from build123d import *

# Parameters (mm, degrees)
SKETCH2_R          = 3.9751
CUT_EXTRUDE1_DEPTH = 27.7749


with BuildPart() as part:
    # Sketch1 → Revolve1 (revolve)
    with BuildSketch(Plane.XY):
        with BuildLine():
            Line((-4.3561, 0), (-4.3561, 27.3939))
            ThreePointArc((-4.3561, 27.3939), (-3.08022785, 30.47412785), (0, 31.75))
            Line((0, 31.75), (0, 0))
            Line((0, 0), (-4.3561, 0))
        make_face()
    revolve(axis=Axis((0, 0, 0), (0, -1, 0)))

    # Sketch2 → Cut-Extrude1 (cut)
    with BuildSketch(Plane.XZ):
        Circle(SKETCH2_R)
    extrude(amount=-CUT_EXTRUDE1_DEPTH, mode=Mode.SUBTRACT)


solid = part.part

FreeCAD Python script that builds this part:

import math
import FreeCAD as App
import Part
import Sketcher
Q = App.Units.Quantity

doc = App.newDocument("Part")
body = doc.addObject("PartDesign::Body", "Body")

# Sketch on XY plane
sketch1 = body.newObject("Sketcher::SketchObject", "Sketch")
sketch1.AttachmentSupport = (doc.getObject("XY_Plane"), [""])
sketch1.MapMode = "FlatFace"
sketch1.addGeometry([
    Part.LineSegment(App.Vector(-4.4, 27.4, 0), App.Vector(-4.4, 0, 0)),
    Part.LineSegment(App.Vector(-4.4, 0, 0), App.Vector(0, 0, 0)),
    Part.LineSegment(App.Vector(0, 0, 0), App.Vector(0, 31.8, 0)),
    Part.ArcOfCircle(Part.Circle(App.Vector(0, 27.4, 0), App.Vector(0, 0, 1), 4.4), math.radians(90), math.radians(180)),
], False)
sketch1.addConstraint([
    Sketcher.Constraint("Coincident", 0, 2, 1, 1),
    Sketcher.Constraint("Coincident", 1, 2, 2, 1),
    Sketcher.Constraint("Coincident", 2, 2, 3, 1),
    Sketcher.Constraint("Tangent", 3, 2, 0, 1),
    Sketcher.Constraint("Vertical", 0),
    Sketcher.Constraint("Horizontal", 1),
    Sketcher.Constraint("Vertical", 2),
    Sketcher.Constraint("Coincident", 1, 2, -1, 1),
    Sketcher.Constraint("PointOnObject", 3, 3, -2),
    Sketcher.Constraint("DistanceY", 2, 1, 2, 2, Q("1.25 in")),
    Sketcher.Constraint("Radius", 3, Q("0.1715 in")),
])
revolution = body.newObject("PartDesign::Revolution", "Revolution")
revolution.Profile = sketch1
revolution.ReferenceAxis = (sketch1, ["V_Axis"])
revolution.Angle = 360

# Sketch on XZ plane
sketch2 = body.newObject("Sketcher::SketchObject", "Sketch001")
sketch2.AttachmentSupport = (doc.getObject("XZ_Plane"), [""])
sketch2.MapMode = "FlatFace"
sketch2.addGeometry(Part.Circle(App.Vector(0, 0, 0), App.Vector(0, 0, 1), 4), False)
sketch2.addConstraint([
    Sketcher.Constraint("Coincident", 0, 3, -1, 1),
    Sketcher.Constraint("Diameter", 0, Q("0.313 in")),
])
pocket1 = body.newObject("PartDesign::Pocket", "Pocket")
pocket1.Profile = sketch2
pocket1.Length = Q("1.0935 in")

doc.recompute()
